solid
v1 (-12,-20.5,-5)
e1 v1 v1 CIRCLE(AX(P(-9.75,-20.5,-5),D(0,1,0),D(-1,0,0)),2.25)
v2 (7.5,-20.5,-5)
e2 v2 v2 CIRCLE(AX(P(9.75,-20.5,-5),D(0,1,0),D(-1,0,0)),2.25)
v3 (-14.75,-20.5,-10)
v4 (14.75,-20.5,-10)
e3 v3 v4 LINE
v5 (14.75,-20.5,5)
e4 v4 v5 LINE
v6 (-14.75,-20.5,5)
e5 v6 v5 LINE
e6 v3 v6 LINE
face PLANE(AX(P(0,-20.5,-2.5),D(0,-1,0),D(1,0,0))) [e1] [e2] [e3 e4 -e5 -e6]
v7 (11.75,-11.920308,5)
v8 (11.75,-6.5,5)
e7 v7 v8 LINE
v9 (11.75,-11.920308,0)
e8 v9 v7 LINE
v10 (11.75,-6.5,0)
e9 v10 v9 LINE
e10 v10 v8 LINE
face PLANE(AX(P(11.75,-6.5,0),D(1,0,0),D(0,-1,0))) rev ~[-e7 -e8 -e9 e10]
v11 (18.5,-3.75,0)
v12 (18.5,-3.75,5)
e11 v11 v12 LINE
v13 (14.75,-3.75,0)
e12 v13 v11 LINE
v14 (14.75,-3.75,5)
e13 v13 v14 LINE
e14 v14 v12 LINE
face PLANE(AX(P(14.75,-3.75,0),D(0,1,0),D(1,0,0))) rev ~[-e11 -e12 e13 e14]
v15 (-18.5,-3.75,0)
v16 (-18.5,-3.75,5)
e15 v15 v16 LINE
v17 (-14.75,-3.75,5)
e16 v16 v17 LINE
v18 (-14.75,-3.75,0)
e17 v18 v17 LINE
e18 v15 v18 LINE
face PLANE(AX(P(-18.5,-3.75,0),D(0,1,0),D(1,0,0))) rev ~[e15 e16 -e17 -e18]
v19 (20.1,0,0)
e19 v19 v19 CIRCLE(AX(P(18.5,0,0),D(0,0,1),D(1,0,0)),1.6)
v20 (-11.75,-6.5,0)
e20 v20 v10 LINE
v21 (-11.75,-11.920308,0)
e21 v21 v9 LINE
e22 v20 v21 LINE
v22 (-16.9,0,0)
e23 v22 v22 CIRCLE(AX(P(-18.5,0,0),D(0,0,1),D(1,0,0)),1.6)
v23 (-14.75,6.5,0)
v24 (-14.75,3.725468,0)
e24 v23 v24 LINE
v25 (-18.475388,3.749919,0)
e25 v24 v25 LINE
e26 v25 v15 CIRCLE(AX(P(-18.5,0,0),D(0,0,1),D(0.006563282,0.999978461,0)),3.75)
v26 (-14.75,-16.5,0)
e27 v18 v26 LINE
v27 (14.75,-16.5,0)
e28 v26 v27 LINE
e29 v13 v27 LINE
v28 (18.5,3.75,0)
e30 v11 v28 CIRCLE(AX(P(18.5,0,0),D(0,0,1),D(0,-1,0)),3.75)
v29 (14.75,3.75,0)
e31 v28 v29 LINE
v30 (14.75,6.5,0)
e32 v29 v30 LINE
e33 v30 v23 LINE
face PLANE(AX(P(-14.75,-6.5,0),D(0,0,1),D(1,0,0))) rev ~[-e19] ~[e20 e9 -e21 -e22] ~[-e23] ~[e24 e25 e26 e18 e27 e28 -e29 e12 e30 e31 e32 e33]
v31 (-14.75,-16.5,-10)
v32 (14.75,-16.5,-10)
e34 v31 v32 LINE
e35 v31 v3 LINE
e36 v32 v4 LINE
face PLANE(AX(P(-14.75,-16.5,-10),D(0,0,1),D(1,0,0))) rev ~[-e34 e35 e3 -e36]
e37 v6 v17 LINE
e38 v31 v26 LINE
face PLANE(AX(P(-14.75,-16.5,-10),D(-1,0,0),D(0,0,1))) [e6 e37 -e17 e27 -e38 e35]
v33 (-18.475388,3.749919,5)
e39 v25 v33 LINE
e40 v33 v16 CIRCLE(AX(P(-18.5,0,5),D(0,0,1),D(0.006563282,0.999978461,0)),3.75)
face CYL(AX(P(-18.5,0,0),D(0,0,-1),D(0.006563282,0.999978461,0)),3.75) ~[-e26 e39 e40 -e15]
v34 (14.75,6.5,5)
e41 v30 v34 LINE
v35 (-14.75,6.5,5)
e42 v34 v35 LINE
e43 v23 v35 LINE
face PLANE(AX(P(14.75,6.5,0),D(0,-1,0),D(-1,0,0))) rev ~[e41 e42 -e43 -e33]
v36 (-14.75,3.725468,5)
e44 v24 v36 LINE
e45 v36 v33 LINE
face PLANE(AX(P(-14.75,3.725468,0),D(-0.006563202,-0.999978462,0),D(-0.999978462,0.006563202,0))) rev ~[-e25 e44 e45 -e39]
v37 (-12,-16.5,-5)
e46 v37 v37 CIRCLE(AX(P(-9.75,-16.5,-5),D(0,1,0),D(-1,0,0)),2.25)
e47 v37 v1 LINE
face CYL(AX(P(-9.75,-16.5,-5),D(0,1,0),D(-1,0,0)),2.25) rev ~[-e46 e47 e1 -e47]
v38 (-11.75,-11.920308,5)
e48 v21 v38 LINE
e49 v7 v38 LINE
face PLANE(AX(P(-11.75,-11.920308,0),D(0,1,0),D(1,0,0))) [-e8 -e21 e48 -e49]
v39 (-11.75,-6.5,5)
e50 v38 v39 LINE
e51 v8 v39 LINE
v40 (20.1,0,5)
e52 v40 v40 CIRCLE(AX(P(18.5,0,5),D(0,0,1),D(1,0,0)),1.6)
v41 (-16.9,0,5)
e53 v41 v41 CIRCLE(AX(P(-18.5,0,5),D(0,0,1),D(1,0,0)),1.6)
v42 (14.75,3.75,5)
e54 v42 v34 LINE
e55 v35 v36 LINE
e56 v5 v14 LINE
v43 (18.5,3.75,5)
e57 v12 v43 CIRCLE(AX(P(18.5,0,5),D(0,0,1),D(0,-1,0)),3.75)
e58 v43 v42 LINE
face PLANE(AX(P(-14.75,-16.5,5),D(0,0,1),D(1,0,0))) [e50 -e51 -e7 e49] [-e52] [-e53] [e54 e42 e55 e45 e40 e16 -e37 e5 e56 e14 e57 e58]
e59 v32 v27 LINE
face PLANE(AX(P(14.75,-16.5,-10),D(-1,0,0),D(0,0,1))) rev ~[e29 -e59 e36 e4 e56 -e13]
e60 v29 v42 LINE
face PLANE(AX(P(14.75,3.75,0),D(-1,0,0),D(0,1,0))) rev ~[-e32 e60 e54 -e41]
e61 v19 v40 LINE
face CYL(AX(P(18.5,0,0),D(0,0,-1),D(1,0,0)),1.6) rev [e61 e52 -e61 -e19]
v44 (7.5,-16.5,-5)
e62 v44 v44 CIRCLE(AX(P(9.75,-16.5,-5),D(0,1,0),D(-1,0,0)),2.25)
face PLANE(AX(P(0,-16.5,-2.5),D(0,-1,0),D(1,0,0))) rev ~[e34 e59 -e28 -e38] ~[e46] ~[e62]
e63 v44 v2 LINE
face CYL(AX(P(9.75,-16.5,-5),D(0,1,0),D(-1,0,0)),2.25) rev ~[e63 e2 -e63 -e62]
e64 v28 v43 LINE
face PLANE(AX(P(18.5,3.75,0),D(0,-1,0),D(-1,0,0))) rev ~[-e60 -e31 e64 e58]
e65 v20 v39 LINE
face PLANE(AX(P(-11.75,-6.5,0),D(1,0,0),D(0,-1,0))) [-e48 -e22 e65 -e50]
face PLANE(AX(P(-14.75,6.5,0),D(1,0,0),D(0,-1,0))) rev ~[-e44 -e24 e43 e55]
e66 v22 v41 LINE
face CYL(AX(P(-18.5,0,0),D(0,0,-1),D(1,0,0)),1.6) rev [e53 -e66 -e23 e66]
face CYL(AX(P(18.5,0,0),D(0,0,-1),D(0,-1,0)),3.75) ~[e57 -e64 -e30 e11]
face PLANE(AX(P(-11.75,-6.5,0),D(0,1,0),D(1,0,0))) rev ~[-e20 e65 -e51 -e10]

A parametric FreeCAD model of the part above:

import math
import FreeCAD as App
import Part
import Sketcher
from FreeCAD import Vector


def add_polygon(sketch, points):
    """Adds a closed chain of lines whose ends are joined by coincident constraints."""
    first, n = sketch.GeometryCount, len(points)
    for a, b in zip(points, points[1:] + points[:1]):
        sketch.addGeometry(Part.LineSegment(App.Vector(*a, 0), App.Vector(*b, 0)), False)
    for i in range(n):
        sketch.addConstraint(Sketcher.Constraint("Coincident", first + i, 2, first + (i + 1) % n, 1))

doc = App.newDocument("Part")
body = doc.addObject("PartDesign::Body", "Body")

sketch1 = body.newObject("Sketcher::SketchObject", "Sketch")
sketch1.AttachmentSupport = (doc.getObject("XY_Plane"), [""])
sketch1.MapMode = "FlatFace"
sketch1.addGeometry(Part.LineSegment(Vector(14.75, 6.5, 0), Vector(-14.75, 6.5, 0)), False)
sketch1.addGeometry(Part.LineSegment(Vector(-14.75, 6.5, 0), Vector(-14.75, 3.725468, 0)), False)
sketch1.addGeometry(Part.LineSegment(Vector(-14.75, 3.725468, 0), Vector(-18.475388, 3.749919, 0)), False)
sketch1.addGeometry(Part.ArcOfCircle(Part.Circle(Vector(-18.5, 0, 0), Vector(0, 0, 1), 3.75), math.radians(89.623949), math.radians(270.000005)), False)
sketch1.addGeometry(Part.LineSegment(Vector(-18.5, -3.75, 0), Vector(-14.75, -3.75, 0)), False)
sketch1.addGeometry(Part.LineSegment(Vector(-14.75, -3.75, 0), Vector(-14.75, -6.5, 0)), False)
sketch1.addGeometry(Part.LineSegment(Vector(-14.75, -6.5, 0), Vector(14.75, -6.5, 0)), False)
sketch1.addGeometry(Part.LineSegment(Vector(14.75, -6.5, 0), Vector(14.75, -3.75, 0)), False)
sketch1.addGeometry(Part.LineSegment(Vector(14.75, -3.75, 0), Vector(18.5, -3.75, 0)), False)
sketch1.addGeometry(Part.ArcOfCircle(Part.Circle(Vector(18.5, 0, 0), Vector(0, 0, 1), 3.75), math.radians(-90), math.radians(90)), False)
sketch1.addGeometry(Part.LineSegment(Vector(18.5, 3.75, 0), Vector(14.75, 3.75, 0)), False)
sketch1.addGeometry(Part.LineSegment(Vector(14.75, 3.75, 0), Vector(14.75, 6.5, 0)), False)
sketch1.addGeometry(Part.Circle(Vector(-18.5, 0, 0), Vector(0, 0, 1), 1.6), False)
sketch1.addGeometry(Part.Circle(Vector(18.5, 0, 0), Vector(0, 0, 1), 1.6), False)
sketch1.addConstraint(Sketcher.Constraint("Coincident", 0, 2, 1, 1))
sketch1.addConstraint(Sketcher.Constraint("Coincident", 1, 2, 2, 1))
sketch1.addConstraint(Sketcher.Constraint("Tangent", 2, 2, 3, 1))
sketch1.addConstraint(Sketcher.Constraint("Tangent", 3, 2, 4, 1))
sketch1.addConstraint(Sketcher.Constraint("Coincident", 4, 2, 5, 1))
sketch1.addConstraint(Sketcher.Constraint("Coincident", 5, 2, 6, 1))
sketch1.addConstraint(Sketcher.Constraint("Coincident", 6, 2, 7, 1))
sketch1.addConstraint(Sketcher.Constraint("Coincident", 7, 2, 8, 1))
sketch1.addConstraint(Sketcher.Constraint("Tangent", 8, 2, 9, 1))
sketch1.addConstraint(Sketcher.Constraint("Tangent", 9, 2, 10, 1))
sketch1.addConstraint(Sketcher.Constraint("Coincident", 10, 2, 11, 1))
sketch1.addConstraint(Sketcher.Constraint("Coincident", 11, 2, 0, 1))
sketch1.addConstraint(Sketcher.Constraint("Horizontal", 0))
sketch1.addConstraint(Sketcher.Constraint("Vertical", 1))
sketch1.addConstraint(Sketcher.Constraint("Horizontal", 4))
sketch1.addConstraint(Sketcher.Constraint("Vertical", 5))
sketch1.addConstraint(Sketcher.Constraint("Horizontal", 6))
sketch1.addConstraint(Sketcher.Constraint("Vertical", 7))
sketch1.addConstraint(Sketcher.Constraint("Horizontal", 8))
sketch1.addConstraint(Sketcher.Constraint("Horizontal", 10))
sketch1.addConstraint(Sketcher.Constraint("Vertical", 11))
sketch1.addConstraint(Sketcher.Constraint("Coincident", 12, 3, 3, 3))
sketch1.addConstraint(Sketcher.Constraint("Coincident", 13, 3, 9, 3))
sketch1.addConstraint(Sketcher.Constraint("Equal", 3, 9))
sketch1.addConstraint(Sketcher.Constraint("Equal", 12, 13))
sketch1.addConstraint(Sketcher.Constraint("Symmetric", 3, 3, 9, 3, -1, 1))
sketch1.addConstraint(Sketcher.Constraint("Symmetric", 0, 2, 6, 2, -1, 1))
sketch1.addConstraint(Sketcher.Constraint("Symmetric", 4, 2, 7, 2, -2))
sketch1.addConstraint(Sketcher.Constraint("Vertical", 7, 2, 10, 2))
sketch1.addConstraint(Sketcher.Constraint("Diameter", 12, 3.2))
sketch1.addConstraint(Sketcher.Constraint("Radius", 3, 3.75))
sketch1.addConstraint(Sketcher.Constraint("DistanceX", 0, 2, 0, 1, 29.5))
sketch1.addConstraint(Sketcher.Constraint("DistanceX", 3, 3, 9, 3, 37.0))
sketch1.addConstraint(Sketcher.Constraint("DistanceY", 5, 2, 5, 1, 2.75))
sketch1.addConstraint(Sketcher.Constraint("Distance", 2, 3.725468))
pad1 = body.newObject("PartDesign::Pad", "Pad")
pad1.Profile = sketch1
pad1.Length = 5

sketch2 = body.newObject("Sketcher::SketchObject", "Sketch001")
sketch2.AttachmentSupport = (doc.getObject("XZ_Plane"), [""])
sketch2.MapMode = "FlatFace"
sketch2.AttachmentOffset = App.Placement(Vector(0, 0, 6.5), App.Rotation())
add_polygon(sketch2, [(-14.75, 5), (-14.75, 0), (14.75, 0), (14.75, 5)])
sketch2.addConstraint(Sketcher.Constraint("Vertical", 0))
sketch2.addConstraint(Sketcher.Constraint("Horizontal", 1))
sketch2.addConstraint(Sketcher.Constraint("Vertical", 2))
sketch2.addConstraint(Sketcher.Constraint("Horizontal", 3))
sketch2.addConstraint(Sketcher.Constraint("Symmetric", 0, 2, 1, 2, -1, 1))
sketch2.addConstraint(Sketcher.Constraint("DistanceY", 0, 2, 0, 1, 5.0))
sketch2.addConstraint(Sketcher.Constraint("DistanceX", 1, 1, 1, 2, 29.5))
pad2 = body.newObject("PartDesign::Pad", "Pad001")
pad2.Profile = sketch2
pad2.Length = 10

sketch3 = body.newObject("Sketcher::SketchObject", "Sketch002")
sketch3.AttachmentSupport = (doc.getObject("XZ_Plane"), [""])
sketch3.MapMode = "FlatFace"
sketch3.AttachmentOffset = App.Placement(Vector(0, 0, 16.5), App.Rotation())
add_polygon(sketch3, [(-14.75, 5), (-14.75, -10), (14.75, -10), (14.75, 5)])
sketch3.addConstraint(Sketcher.Constraint("Vertical", 0))
sketch3.addConstraint(Sketcher.Constraint("Horizontal", 1))
sketch3.addConstraint(Sketcher.Constraint("Vertical", 2))
sketch3.addConstraint(Sketcher.Constraint("Horizontal", 3))
sketch3.addConstraint(Sketcher.Constraint("DistanceY", 0, 2, 0, 1, 15.0))
sketch3.addConstraint(Sketcher.Constraint("DistanceX", 1, 1, 1, 2, 29.5))
sketch3.addConstraint(Sketcher.Constraint("DistanceY", 0, 2, -1, 1, 10.0))
sketch3.addConstraint(Sketcher.Constraint("DistanceX", 0, 2, -1, 1, 14.75))
pad3 = body.newObject("PartDesign::Pad", "Pad002")
pad3.Profile = sketch3
pad3.Length = 4

sketch4 = body.newObject("Sketcher::SketchObject", "Sketch003")
sketch4.AttachmentSupport = (doc.getObject("XZ_Plane"), [""])
sketch4.MapMode = "FlatFace"
sketch4.AttachmentOffset = App.Placement(Vector(0, 0, 16.5), App.Rotation())
sketch4.addGeometry(Part.Circle(Vector(9.75, -5, 0), Vector(0, 0, 1), 2.25), False)
sketch4.addGeometry(Part.Circle(Vector(-9.75, -5, 0), Vector(0, 0, 1), 2.25), False)
sketch4.addConstraint(Sketcher.Constraint("Equal", 0, 1))
sketch4.addConstraint(Sketcher.Constraint("Symmetric", 0, 3, 1, 3, -2))
sketch4.addConstraint(Sketcher.Constraint("Diameter", 0, 4.5))
sketch4.addConstraint(Sketcher.Constraint("DistanceY", 0, 3, -1, 1, 5.0))
sketch4.addConstraint(Sketcher.Constraint("DistanceX", 1, 3, 0, 3, 19.5))
pocket1 = body.newObject("PartDesign::Pocket", "Pocket")
pocket1.Profile = sketch4
pocket1.Length = 25
pocket1.Reversed = True

sketch5 = body.newObject("Sketcher::SketchObject", "Sketch004")
sketch5.AttachmentSupport = (doc.getObject("XY_Plane"), [""])
sketch5.MapMode = "FlatFace"
add_polygon(sketch5, [(-11.75, -11.920308), (-11.75, -6.5), (11.75, -6.5), (11.75, -11.920308)])
sketch5.addConstraint(Sketcher.Constraint("Vertical", 0))
sketch5.addConstraint(Sketcher.Constraint("Horizontal", 1))
sketch5.addConstraint(Sketcher.Constraint("Vertical", 2))
sketch5.addConstraint(Sketcher.Constraint("Horizontal", 3))
sketch5.addConstraint(Sketcher.Constraint("DistanceX", 1, 1, 1, 2, 23.5))
sketch5.addConstraint(Sketcher.Constraint("DistanceY", 0, 2, -1, 1, 6.5))
sketch5.addConstraint(Sketcher.Constraint("DistanceX", 0, 2, -1, 1, 11.75))
sketch5.addConstraint(Sketcher.Constraint("DistanceY", 0, 1, 0, 2, 5.420308))
pocket2 = body.newObject("PartDesign::Pocket", "Pocket001")
pocket2.Profile = sketch5
pocket2.Length = 25
pocket2.Reversed = True

doc.recompute()
